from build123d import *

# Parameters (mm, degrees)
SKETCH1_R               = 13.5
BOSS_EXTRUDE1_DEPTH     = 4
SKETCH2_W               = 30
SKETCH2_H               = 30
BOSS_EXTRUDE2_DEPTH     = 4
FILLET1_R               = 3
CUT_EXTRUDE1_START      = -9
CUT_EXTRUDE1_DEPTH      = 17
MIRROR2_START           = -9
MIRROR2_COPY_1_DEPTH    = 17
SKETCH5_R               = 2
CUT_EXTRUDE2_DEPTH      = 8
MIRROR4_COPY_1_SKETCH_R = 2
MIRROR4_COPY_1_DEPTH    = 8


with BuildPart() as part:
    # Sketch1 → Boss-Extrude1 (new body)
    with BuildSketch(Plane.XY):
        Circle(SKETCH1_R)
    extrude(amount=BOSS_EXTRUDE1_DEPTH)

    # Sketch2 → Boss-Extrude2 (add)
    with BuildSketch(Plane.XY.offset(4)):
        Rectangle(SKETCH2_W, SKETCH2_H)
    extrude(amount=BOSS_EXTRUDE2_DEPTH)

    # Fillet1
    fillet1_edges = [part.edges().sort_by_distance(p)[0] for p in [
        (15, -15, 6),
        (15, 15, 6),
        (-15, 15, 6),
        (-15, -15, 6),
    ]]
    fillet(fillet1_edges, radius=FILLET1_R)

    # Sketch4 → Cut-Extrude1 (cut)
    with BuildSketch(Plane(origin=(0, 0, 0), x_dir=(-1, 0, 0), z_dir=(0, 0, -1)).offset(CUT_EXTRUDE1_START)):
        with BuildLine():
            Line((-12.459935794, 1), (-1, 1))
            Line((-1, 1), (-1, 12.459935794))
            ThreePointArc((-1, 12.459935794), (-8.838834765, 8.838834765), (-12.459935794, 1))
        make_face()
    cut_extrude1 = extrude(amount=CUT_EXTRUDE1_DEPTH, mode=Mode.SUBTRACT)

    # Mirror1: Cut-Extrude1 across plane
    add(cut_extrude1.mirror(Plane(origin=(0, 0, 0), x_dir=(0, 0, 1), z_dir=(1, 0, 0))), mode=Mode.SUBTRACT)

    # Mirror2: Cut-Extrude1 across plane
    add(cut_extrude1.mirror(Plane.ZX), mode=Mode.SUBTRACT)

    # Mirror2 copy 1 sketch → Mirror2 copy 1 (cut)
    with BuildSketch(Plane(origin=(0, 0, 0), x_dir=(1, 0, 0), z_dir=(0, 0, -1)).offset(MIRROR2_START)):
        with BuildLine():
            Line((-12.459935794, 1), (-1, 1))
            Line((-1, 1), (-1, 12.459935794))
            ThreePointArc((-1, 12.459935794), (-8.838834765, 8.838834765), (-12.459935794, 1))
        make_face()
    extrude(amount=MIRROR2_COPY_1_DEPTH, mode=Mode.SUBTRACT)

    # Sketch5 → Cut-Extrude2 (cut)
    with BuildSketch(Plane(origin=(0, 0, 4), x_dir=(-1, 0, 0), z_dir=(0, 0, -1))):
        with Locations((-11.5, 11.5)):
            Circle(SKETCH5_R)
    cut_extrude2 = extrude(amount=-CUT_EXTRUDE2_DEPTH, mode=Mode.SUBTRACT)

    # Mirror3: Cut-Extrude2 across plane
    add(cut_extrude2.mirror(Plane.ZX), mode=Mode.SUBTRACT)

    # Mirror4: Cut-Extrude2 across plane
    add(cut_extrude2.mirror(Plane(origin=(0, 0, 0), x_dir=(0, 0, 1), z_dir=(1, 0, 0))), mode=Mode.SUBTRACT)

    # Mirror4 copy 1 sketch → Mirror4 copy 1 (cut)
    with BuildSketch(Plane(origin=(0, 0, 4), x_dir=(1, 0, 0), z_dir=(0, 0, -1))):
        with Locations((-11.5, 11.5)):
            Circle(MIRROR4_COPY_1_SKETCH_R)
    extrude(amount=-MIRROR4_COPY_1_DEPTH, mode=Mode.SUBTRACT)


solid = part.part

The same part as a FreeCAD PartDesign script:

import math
import FreeCAD as App
import Part
import Sketcher
from FreeCAD import Vector
Q = App.Units.Quantity


def edges_at(feature, points):
    """Names of the edges that pass closest to the given points."""
    edges = feature.Shape.Edges
    near = lambda p: min(range(len(edges)), key=lambda i: edges[i].distToShape(Part.Vertex(*p))[0])
    return sorted({f"Edge{near(p) + 1}" for p in points})


def add_polygon(sketch, points):
    """Adds a closed chain of lines whose ends are joined by coincident constraints."""
    first, n = sketch.GeometryCount, len(points)
    for a, b in zip(points, points[1:] + points[:1]):
        sketch.addGeometry(Part.LineSegment(App.Vector(*a, 0), App.Vector(*b, 0)), False)
    for i in range(n):
        sketch.addConstraint(Sketcher.Constraint("Coincident", first + i, 2, first + (i + 1) % n, 1))

doc = App.newDocument("Part")
body = doc.addObject("PartDesign::Body", "Body")

sketch1 = doc.addObject("Sketcher::SketchObject", "Sketch")
body.addObject(sketch1)
sketch1.AttachmentSupport = (doc.XY_Plane, [""])
sketch1.MapMode = "FlatFace"
sketch1.addGeometry(Part.Circle(Vector(0, 0, 0), Vector(0, 0, 1), 14), False)
sketch1.addConstraint([
    Sketcher.Constraint("Coincident", 0, 3, -1, 1),
    Sketcher.Constraint("Diameter", 0, Q("27 mm")),
])
pad1 = doc.addObject("PartDesign::Pad", "Pad")
body.addObject(pad1)
pad1.Profile = sketch1
pad1.Length = 4

sketch2 = doc.addObject("Sketcher::SketchObject", "Sketch001")
body.addObject(sketch2)
sketch2.AttachmentSupport = (doc.XY_Plane, [""])
sketch2.MapMode = "FlatFace"
sketch2.AttachmentOffset = App.Placement(Vector(0, 0, 4), App.Rotation())
add_polygon(sketch2, [(-15, 15), (-15, -15), (15, -15), (15, 15)])
sketch2.addConstraint([
    Sketcher.Constraint("Vertical", 0),
    Sketcher.Constraint("Horizontal", 1),
    Sketcher.Constraint("Vertical", 2),
    Sketcher.Constraint("Horizontal", 3),
    Sketcher.Constraint("Symmetric", 0, 2, 2, 2, -1, 1),
    Sketcher.Constraint("Equal", 3, 0),
    Sketcher.Constraint("DistanceX", 1, 1, 1, 2, Q("30 mm")),
])
pad2 = doc.addObject("PartDesign::Pad", "Pad001")
body.addObject(pad2)
pad2.Profile = sketch2
pad2.Length = 4
doc.recompute()

fillet = doc.addObject("PartDesign::Fillet", "Fillet")
body.addObject(fillet)
fillet.Base = (pad2, edges_at(pad2, [
    (15, -15, 6),
    (15, 15, 6),
    (-15, 15, 6),
    (-15, -15, 6),
]))
fillet.Radius = 3

sketch3 = doc.addObject("Sketcher::SketchObject", "Sketch002")
body.addObject(sketch3)
sketch3.AttachmentSupport = (doc.XY_Plane, [""])
sketch3.MapMode = "FlatFace"
sketch3.AttachmentOffset = App.Placement(Vector(0, 0, 9), App.Rotation())
sketch3.addGeometry([
    Part.LineSegment(Vector(12, 1, 0), Vector(1, 1, 0)),
    Part.LineSegment(Vector(1, 1, 0), Vector(1, 12, 0)),
    Part.ArcOfCircle(Part.Circle(Vector(0, 0, 0), Vector(0, 0, 1), 12), math.radians(5), math.radians(85)),
], False)
sketch3.addConstraint([
    Sketcher.Constraint("Coincident", 0, 2, 1, 1),
    Sketcher.Constraint("Coincident", 1, 2, 2, 2),
    Sketcher.Constraint("Coincident", 2, 1, 0, 1),
    Sketcher.Constraint("Horizontal", 0),
    Sketcher.Constraint("Vertical", 1),
    Sketcher.Constraint("Coincident", 2, 3, -1, 1),
    Sketcher.Constraint("Equal", 0, 1),
    Sketcher.Constraint("Radius", 2, Q("12.5 mm")),
    Sketcher.Constraint("DistanceX", -1, 1, 0, 2, Q("1 mm")),
])
pocket1 = doc.addObject("PartDesign::Pocket", "Pocket")
body.addObject(pocket1)
pocket1.Profile = sketch3
pocket1.Length = 17
doc.recompute()

mirrored = doc.addObject("PartDesign::Mirrored", "Mirrored")
body.addObject(mirrored)
mirrored.Originals = [pocket1]
mirrored.MirrorPlane = (doc.YZ_Plane, [""])
body.Tip = mirrored
doc.recompute()

mirrored2 = doc.addObject("PartDesign::Mirrored", "Mirrored001")
body.addObject(mirrored2)
mirrored2.Originals = [pocket1]
mirrored2.MirrorPlane = (doc.XZ_Plane, [""])
body.Tip = mirrored2

sketch4 = doc.addObject("Sketcher::SketchObject", "Sketch003")
body.addObject(sketch4)
sketch4.AttachmentSupport = (doc.XY_Plane, [""])
sketch4.MapMode = "FlatFace"
sketch4.AttachmentOffset = App.Placement(Vector(0, 0, 9), App.Rotation())
sketch4.addGeometry([
    Part.LineSegment(Vector(-12, -1, 0), Vector(-1, -1, 0)),
    Part.LineSegment(Vector(-1, -1, 0), Vector(-1, -12, 0)),
    Part.ArcOfCircle(Part.Circle(Vector(0, 0, 0), Vector(0, 0, 1), 12), math.radians(-175), math.radians(-95)),
], False)
sketch4.addConstraint([
    Sketcher.Constraint("Coincident", 0, 2, 1, 1),
    Sketcher.Constraint("Coincident", 1, 2, 2, 2),
    Sketcher.Constraint("Coincident", 2, 1, 0, 1),
    Sketcher.Constraint("Horizontal", 0),
    Sketcher.Constraint("Vertical", 1),
    Sketcher.Constraint("Coincident", 2, 3, -1, 1),
    Sketcher.Constraint("Equal", 0, 1),
    Sketcher.Constraint("Radius", 2, Q("12.5 mm")),
    Sketcher.Constraint("DistanceX", 0, 2, -1, 1, Q("1 mm")),
])
pocket2 = doc.addObject("PartDesign::Pocket", "Pocket001")
body.addObject(pocket2)
pocket2.Profile = sketch4
pocket2.Length = 17

sketch5 = doc.addObject("Sketcher::SketchObject", "Sketch004")
body.addObject(sketch5)
sketch5.AttachmentSupport = (doc.XY_Plane, [""])
sketch5.MapMode = "FlatFace"
sketch5.AttachmentOffset = App.Placement(Vector(0, 0, 4), App.Rotation())
sketch5.addGeometry(Part.Circle(Vector(11.5, 11.5, 0), Vector(0, 0, 1), 2), False)
sketch5.addConstraint([
    Sketcher.Constraint("Diameter", 0, Q("4 mm")),
    Sketcher.Constraint("DistanceX", -1, 1, 0, 3, Q("11.5 mm")),
    Sketcher.Constraint("DistanceY", -1, 1, 0, 3, Q("11.5 mm")),
])
pocket3 = doc.addObject("PartDesign::Pocket", "Pocket002")
body.addObject(pocket3)
pocket3.Profile = sketch5
pocket3.Length = 8
pocket3.Reversed = True
doc.recompute()

mirrored3 = doc.addObject("PartDesign::Mirrored", "Mirrored002")
body.addObject(mirrored3)
mirrored3.Originals = [pocket3]
mirrored3.MirrorPlane = (doc.XZ_Plane, [""])
body.Tip = mirrored3
doc.recompute()

mirrored4 = doc.addObject("PartDesign::Mirrored", "Mirrored003")
body.addObject(mirrored4)
mirrored4.Originals = [pocket3]
mirrored4.MirrorPlane = (doc.YZ_Plane, [""])
body.Tip = mirrored4

sketch6 = doc.addObject("Sketcher::SketchObject", "Sketch005")
body.addObject(sketch6)
sketch6.AttachmentSupport = (doc.XY_Plane, [""])
sketch6.MapMode = "FlatFace"
sketch6.AttachmentOffset = App.Placement(Vector(0, 0, 4), App.Rotation())
sketch6.addGeometry(Part.Circle(Vector(-11.5, -11.5, 0), Vector(0, 0, 1), 2), False)
sketch6.addConstraint([
    Sketcher.Constraint("Diameter", 0, Q("4 mm")),
    Sketcher.Constraint("DistanceX", 0, 3, -1, 1, Q("11.5 mm")),
    Sketcher.Constraint("DistanceY", 0, 3, -1, 1, Q("11.5 mm")),
])
pocket4 = doc.addObject("PartDesign::Pocket", "Pocket003")
body.addObject(pocket4)
pocket4.Profile = sketch6
pocket4.Length = 8
pocket4.Reversed = True

doc.recompute()
